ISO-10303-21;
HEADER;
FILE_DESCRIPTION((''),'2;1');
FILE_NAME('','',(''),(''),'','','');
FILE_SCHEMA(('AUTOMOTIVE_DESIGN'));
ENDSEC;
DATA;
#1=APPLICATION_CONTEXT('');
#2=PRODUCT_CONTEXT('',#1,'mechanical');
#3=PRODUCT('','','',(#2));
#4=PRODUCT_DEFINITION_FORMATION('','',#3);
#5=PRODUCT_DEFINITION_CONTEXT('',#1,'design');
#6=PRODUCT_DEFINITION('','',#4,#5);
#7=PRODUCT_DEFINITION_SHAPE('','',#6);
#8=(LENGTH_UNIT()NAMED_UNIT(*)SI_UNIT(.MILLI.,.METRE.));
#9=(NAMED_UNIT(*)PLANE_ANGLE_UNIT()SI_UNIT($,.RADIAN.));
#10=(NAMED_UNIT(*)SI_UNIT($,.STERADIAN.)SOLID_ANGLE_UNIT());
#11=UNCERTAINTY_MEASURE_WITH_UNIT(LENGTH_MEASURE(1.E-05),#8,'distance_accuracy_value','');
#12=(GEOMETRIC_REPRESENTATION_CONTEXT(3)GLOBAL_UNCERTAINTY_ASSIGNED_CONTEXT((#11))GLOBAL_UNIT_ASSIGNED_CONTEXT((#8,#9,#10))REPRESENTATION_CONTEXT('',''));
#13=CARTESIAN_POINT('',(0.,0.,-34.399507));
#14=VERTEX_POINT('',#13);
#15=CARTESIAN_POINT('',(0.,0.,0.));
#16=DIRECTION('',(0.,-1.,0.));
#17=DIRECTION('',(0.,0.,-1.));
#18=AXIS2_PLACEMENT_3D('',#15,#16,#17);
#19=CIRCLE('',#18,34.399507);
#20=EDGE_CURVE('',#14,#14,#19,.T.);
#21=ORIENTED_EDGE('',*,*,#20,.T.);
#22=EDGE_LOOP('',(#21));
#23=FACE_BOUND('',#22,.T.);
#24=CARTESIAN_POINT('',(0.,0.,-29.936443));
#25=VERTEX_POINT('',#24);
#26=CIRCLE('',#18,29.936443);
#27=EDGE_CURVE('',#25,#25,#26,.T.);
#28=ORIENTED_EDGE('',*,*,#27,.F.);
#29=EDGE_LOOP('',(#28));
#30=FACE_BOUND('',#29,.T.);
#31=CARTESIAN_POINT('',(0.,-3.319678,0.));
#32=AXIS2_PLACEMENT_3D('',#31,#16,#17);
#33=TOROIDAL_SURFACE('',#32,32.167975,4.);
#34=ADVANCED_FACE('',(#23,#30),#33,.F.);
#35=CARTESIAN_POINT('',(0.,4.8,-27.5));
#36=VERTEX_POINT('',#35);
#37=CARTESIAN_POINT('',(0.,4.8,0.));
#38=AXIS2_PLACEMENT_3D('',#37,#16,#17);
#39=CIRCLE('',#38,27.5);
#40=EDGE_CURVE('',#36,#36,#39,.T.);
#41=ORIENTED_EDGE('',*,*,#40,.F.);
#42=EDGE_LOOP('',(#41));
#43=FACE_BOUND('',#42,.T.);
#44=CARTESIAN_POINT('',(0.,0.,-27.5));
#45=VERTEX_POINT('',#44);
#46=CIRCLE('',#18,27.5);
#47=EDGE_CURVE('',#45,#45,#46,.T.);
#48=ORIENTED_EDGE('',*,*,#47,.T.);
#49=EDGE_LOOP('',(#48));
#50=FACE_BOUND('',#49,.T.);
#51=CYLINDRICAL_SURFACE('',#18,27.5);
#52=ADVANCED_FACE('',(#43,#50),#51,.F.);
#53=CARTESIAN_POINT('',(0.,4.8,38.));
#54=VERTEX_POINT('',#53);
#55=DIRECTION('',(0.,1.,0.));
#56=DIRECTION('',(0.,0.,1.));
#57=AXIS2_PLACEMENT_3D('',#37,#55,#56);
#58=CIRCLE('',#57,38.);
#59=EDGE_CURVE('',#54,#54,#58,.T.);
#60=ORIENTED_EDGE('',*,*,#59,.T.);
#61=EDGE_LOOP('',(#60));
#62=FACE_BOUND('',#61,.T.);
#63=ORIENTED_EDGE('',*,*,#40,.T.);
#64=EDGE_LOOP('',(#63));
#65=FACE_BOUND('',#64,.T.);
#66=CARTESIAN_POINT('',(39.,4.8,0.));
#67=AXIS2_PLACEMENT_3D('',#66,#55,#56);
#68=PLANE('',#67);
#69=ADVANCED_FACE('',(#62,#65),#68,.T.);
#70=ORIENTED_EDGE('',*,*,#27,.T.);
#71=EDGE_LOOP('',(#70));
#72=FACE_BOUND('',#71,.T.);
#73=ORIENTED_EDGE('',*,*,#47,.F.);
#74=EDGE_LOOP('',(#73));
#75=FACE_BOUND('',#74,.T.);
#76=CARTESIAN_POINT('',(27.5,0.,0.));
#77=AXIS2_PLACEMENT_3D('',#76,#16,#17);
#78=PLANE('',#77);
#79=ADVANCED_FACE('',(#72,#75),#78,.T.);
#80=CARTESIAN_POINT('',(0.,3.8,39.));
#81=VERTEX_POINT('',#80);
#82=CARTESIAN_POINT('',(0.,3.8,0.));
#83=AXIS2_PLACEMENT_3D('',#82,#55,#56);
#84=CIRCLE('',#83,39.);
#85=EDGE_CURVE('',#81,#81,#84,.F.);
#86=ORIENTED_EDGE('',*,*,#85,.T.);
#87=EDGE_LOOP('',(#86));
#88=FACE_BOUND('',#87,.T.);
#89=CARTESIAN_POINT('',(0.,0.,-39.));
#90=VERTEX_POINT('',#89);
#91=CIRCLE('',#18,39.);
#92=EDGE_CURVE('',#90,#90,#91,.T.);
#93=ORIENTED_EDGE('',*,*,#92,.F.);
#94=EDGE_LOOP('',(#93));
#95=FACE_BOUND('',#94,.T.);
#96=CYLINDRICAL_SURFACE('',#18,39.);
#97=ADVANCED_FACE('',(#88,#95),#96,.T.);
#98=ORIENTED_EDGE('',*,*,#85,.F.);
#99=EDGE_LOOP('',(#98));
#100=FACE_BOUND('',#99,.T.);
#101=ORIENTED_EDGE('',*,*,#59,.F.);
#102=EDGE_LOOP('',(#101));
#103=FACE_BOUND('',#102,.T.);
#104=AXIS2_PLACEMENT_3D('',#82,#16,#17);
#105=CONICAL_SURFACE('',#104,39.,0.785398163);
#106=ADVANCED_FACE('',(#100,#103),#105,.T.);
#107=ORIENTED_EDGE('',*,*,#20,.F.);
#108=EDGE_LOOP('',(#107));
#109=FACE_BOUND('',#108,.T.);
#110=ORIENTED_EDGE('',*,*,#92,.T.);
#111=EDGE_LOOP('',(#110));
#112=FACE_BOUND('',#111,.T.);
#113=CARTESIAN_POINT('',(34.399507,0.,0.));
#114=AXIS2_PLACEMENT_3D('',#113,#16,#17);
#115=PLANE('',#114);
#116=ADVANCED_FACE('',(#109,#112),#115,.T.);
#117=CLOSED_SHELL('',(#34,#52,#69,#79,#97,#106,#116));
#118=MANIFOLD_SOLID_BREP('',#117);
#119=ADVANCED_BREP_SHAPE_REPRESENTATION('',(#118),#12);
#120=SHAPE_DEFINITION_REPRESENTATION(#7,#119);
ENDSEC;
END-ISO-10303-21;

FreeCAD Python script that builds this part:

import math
import FreeCAD as App
import Part
import Sketcher
from FreeCAD import Vector
Q = App.Units.Quantity


def edges_at(feature, points):
    """Names of the edges that pass closest to the given points."""
    edges = feature.Shape.Edges
    near = lambda p: min(range(len(edges)), key=lambda i: edges[i].distToShape(Part.Vertex(*p))[0])
    return sorted({f"Edge{near(p) + 1}" for p in points})

doc = App.newDocument("Part")
body = doc.addObject("PartDesign::Body", "Body")

# Sketch on XY plane
sketch1 = doc.addObject("Sketcher::SketchObject", "Sketch")
body.addObject(sketch1)
sketch1.AttachmentSupport = (doc.XY_Plane, [""])
sketch1.MapMode = "FlatFace"
sketch1.addGeometry([
    Part.LineSegment(Vector(27.5, 0, 0), Vector(29.9, 0, 0)),  # 0
    Part.ArcOfCircle(Part.Circle(Vector(32.2, -3.3, 0), Vector(0, 0, 1), 4), math.radians(56), math.radians(124)),  # 1
    Part.LineSegment(Vector(34.4, 0, 0), Vector(39, 0, 0)),  # 2
    Part.LineSegment(Vector(39, 0, 0), Vector(39, 4.8, 0)),  # 3
    Part.LineSegment(Vector(39, 4.8, 0), Vector(27.5, 4.8, 0)),  # 4
    Part.LineSegment(Vector(27.5, 4.8, 0), Vector(27.5, 0, 0)),  # 5
], False)
sketch1.addConstraint([
    Sketcher.Constraint("Coincident", 0, 2, 1, 2),
    Sketcher.Constraint("Coincident", 1, 1, 2, 1),
    Sketcher.Constraint("Coincident", 2, 2, 3, 1),
    Sketcher.Constraint("Coincident", 3, 2, 4, 1),
    Sketcher.Constraint("Coincident", 4, 2, 5, 1),
    Sketcher.Constraint("Coincident", 5, 2, 0, 1),
    Sketcher.Constraint("Horizontal", 0),
    Sketcher.Constraint("Horizontal", 2),
    Sketcher.Constraint("Vertical", 3),
    Sketcher.Constraint("Horizontal", 4),
    Sketcher.Constraint("Vertical", 5),
    Sketcher.Constraint("PointOnObject", 0, 2, -1),
    Sketcher.Constraint("PointOnObject", 1, 1, -1),
    Sketcher.Constraint("Radius", 1, Q("4 mm")),
    Sketcher.Constraint("DistanceX", 4, 2, 4, 1, Q("11.5 mm")),
    Sketcher.Constraint("DistanceY", 3, 1, 3, 2, Q("4.8 mm")),
    Sketcher.Constraint("DistanceX", -1, 1, 2, 2, Q("39 mm")),
    Sketcher.Constraint("DistanceX", 0, 1, 0, 2, Q("2.436443 mm")),
    Sketcher.Constraint("DistanceX", 2, 1, 2, 2, Q("4.600493 mm")),
])
revolution = doc.addObject("PartDesign::Revolution", "Revolution")
body.addObject(revolution)
revolution.Profile = sketch1
revolution.ReferenceAxis = (sketch1, ["V_Axis"])
revolution.Angle = 360
doc.recompute()

chamfer = doc.addObject("PartDesign::Chamfer", "Chamfer")
body.addObject(chamfer)
chamfer.Base = (revolution, edges_at(revolution, [(-39, 4.8, 0)]))
chamfer.Size = 1

doc.recompute()
